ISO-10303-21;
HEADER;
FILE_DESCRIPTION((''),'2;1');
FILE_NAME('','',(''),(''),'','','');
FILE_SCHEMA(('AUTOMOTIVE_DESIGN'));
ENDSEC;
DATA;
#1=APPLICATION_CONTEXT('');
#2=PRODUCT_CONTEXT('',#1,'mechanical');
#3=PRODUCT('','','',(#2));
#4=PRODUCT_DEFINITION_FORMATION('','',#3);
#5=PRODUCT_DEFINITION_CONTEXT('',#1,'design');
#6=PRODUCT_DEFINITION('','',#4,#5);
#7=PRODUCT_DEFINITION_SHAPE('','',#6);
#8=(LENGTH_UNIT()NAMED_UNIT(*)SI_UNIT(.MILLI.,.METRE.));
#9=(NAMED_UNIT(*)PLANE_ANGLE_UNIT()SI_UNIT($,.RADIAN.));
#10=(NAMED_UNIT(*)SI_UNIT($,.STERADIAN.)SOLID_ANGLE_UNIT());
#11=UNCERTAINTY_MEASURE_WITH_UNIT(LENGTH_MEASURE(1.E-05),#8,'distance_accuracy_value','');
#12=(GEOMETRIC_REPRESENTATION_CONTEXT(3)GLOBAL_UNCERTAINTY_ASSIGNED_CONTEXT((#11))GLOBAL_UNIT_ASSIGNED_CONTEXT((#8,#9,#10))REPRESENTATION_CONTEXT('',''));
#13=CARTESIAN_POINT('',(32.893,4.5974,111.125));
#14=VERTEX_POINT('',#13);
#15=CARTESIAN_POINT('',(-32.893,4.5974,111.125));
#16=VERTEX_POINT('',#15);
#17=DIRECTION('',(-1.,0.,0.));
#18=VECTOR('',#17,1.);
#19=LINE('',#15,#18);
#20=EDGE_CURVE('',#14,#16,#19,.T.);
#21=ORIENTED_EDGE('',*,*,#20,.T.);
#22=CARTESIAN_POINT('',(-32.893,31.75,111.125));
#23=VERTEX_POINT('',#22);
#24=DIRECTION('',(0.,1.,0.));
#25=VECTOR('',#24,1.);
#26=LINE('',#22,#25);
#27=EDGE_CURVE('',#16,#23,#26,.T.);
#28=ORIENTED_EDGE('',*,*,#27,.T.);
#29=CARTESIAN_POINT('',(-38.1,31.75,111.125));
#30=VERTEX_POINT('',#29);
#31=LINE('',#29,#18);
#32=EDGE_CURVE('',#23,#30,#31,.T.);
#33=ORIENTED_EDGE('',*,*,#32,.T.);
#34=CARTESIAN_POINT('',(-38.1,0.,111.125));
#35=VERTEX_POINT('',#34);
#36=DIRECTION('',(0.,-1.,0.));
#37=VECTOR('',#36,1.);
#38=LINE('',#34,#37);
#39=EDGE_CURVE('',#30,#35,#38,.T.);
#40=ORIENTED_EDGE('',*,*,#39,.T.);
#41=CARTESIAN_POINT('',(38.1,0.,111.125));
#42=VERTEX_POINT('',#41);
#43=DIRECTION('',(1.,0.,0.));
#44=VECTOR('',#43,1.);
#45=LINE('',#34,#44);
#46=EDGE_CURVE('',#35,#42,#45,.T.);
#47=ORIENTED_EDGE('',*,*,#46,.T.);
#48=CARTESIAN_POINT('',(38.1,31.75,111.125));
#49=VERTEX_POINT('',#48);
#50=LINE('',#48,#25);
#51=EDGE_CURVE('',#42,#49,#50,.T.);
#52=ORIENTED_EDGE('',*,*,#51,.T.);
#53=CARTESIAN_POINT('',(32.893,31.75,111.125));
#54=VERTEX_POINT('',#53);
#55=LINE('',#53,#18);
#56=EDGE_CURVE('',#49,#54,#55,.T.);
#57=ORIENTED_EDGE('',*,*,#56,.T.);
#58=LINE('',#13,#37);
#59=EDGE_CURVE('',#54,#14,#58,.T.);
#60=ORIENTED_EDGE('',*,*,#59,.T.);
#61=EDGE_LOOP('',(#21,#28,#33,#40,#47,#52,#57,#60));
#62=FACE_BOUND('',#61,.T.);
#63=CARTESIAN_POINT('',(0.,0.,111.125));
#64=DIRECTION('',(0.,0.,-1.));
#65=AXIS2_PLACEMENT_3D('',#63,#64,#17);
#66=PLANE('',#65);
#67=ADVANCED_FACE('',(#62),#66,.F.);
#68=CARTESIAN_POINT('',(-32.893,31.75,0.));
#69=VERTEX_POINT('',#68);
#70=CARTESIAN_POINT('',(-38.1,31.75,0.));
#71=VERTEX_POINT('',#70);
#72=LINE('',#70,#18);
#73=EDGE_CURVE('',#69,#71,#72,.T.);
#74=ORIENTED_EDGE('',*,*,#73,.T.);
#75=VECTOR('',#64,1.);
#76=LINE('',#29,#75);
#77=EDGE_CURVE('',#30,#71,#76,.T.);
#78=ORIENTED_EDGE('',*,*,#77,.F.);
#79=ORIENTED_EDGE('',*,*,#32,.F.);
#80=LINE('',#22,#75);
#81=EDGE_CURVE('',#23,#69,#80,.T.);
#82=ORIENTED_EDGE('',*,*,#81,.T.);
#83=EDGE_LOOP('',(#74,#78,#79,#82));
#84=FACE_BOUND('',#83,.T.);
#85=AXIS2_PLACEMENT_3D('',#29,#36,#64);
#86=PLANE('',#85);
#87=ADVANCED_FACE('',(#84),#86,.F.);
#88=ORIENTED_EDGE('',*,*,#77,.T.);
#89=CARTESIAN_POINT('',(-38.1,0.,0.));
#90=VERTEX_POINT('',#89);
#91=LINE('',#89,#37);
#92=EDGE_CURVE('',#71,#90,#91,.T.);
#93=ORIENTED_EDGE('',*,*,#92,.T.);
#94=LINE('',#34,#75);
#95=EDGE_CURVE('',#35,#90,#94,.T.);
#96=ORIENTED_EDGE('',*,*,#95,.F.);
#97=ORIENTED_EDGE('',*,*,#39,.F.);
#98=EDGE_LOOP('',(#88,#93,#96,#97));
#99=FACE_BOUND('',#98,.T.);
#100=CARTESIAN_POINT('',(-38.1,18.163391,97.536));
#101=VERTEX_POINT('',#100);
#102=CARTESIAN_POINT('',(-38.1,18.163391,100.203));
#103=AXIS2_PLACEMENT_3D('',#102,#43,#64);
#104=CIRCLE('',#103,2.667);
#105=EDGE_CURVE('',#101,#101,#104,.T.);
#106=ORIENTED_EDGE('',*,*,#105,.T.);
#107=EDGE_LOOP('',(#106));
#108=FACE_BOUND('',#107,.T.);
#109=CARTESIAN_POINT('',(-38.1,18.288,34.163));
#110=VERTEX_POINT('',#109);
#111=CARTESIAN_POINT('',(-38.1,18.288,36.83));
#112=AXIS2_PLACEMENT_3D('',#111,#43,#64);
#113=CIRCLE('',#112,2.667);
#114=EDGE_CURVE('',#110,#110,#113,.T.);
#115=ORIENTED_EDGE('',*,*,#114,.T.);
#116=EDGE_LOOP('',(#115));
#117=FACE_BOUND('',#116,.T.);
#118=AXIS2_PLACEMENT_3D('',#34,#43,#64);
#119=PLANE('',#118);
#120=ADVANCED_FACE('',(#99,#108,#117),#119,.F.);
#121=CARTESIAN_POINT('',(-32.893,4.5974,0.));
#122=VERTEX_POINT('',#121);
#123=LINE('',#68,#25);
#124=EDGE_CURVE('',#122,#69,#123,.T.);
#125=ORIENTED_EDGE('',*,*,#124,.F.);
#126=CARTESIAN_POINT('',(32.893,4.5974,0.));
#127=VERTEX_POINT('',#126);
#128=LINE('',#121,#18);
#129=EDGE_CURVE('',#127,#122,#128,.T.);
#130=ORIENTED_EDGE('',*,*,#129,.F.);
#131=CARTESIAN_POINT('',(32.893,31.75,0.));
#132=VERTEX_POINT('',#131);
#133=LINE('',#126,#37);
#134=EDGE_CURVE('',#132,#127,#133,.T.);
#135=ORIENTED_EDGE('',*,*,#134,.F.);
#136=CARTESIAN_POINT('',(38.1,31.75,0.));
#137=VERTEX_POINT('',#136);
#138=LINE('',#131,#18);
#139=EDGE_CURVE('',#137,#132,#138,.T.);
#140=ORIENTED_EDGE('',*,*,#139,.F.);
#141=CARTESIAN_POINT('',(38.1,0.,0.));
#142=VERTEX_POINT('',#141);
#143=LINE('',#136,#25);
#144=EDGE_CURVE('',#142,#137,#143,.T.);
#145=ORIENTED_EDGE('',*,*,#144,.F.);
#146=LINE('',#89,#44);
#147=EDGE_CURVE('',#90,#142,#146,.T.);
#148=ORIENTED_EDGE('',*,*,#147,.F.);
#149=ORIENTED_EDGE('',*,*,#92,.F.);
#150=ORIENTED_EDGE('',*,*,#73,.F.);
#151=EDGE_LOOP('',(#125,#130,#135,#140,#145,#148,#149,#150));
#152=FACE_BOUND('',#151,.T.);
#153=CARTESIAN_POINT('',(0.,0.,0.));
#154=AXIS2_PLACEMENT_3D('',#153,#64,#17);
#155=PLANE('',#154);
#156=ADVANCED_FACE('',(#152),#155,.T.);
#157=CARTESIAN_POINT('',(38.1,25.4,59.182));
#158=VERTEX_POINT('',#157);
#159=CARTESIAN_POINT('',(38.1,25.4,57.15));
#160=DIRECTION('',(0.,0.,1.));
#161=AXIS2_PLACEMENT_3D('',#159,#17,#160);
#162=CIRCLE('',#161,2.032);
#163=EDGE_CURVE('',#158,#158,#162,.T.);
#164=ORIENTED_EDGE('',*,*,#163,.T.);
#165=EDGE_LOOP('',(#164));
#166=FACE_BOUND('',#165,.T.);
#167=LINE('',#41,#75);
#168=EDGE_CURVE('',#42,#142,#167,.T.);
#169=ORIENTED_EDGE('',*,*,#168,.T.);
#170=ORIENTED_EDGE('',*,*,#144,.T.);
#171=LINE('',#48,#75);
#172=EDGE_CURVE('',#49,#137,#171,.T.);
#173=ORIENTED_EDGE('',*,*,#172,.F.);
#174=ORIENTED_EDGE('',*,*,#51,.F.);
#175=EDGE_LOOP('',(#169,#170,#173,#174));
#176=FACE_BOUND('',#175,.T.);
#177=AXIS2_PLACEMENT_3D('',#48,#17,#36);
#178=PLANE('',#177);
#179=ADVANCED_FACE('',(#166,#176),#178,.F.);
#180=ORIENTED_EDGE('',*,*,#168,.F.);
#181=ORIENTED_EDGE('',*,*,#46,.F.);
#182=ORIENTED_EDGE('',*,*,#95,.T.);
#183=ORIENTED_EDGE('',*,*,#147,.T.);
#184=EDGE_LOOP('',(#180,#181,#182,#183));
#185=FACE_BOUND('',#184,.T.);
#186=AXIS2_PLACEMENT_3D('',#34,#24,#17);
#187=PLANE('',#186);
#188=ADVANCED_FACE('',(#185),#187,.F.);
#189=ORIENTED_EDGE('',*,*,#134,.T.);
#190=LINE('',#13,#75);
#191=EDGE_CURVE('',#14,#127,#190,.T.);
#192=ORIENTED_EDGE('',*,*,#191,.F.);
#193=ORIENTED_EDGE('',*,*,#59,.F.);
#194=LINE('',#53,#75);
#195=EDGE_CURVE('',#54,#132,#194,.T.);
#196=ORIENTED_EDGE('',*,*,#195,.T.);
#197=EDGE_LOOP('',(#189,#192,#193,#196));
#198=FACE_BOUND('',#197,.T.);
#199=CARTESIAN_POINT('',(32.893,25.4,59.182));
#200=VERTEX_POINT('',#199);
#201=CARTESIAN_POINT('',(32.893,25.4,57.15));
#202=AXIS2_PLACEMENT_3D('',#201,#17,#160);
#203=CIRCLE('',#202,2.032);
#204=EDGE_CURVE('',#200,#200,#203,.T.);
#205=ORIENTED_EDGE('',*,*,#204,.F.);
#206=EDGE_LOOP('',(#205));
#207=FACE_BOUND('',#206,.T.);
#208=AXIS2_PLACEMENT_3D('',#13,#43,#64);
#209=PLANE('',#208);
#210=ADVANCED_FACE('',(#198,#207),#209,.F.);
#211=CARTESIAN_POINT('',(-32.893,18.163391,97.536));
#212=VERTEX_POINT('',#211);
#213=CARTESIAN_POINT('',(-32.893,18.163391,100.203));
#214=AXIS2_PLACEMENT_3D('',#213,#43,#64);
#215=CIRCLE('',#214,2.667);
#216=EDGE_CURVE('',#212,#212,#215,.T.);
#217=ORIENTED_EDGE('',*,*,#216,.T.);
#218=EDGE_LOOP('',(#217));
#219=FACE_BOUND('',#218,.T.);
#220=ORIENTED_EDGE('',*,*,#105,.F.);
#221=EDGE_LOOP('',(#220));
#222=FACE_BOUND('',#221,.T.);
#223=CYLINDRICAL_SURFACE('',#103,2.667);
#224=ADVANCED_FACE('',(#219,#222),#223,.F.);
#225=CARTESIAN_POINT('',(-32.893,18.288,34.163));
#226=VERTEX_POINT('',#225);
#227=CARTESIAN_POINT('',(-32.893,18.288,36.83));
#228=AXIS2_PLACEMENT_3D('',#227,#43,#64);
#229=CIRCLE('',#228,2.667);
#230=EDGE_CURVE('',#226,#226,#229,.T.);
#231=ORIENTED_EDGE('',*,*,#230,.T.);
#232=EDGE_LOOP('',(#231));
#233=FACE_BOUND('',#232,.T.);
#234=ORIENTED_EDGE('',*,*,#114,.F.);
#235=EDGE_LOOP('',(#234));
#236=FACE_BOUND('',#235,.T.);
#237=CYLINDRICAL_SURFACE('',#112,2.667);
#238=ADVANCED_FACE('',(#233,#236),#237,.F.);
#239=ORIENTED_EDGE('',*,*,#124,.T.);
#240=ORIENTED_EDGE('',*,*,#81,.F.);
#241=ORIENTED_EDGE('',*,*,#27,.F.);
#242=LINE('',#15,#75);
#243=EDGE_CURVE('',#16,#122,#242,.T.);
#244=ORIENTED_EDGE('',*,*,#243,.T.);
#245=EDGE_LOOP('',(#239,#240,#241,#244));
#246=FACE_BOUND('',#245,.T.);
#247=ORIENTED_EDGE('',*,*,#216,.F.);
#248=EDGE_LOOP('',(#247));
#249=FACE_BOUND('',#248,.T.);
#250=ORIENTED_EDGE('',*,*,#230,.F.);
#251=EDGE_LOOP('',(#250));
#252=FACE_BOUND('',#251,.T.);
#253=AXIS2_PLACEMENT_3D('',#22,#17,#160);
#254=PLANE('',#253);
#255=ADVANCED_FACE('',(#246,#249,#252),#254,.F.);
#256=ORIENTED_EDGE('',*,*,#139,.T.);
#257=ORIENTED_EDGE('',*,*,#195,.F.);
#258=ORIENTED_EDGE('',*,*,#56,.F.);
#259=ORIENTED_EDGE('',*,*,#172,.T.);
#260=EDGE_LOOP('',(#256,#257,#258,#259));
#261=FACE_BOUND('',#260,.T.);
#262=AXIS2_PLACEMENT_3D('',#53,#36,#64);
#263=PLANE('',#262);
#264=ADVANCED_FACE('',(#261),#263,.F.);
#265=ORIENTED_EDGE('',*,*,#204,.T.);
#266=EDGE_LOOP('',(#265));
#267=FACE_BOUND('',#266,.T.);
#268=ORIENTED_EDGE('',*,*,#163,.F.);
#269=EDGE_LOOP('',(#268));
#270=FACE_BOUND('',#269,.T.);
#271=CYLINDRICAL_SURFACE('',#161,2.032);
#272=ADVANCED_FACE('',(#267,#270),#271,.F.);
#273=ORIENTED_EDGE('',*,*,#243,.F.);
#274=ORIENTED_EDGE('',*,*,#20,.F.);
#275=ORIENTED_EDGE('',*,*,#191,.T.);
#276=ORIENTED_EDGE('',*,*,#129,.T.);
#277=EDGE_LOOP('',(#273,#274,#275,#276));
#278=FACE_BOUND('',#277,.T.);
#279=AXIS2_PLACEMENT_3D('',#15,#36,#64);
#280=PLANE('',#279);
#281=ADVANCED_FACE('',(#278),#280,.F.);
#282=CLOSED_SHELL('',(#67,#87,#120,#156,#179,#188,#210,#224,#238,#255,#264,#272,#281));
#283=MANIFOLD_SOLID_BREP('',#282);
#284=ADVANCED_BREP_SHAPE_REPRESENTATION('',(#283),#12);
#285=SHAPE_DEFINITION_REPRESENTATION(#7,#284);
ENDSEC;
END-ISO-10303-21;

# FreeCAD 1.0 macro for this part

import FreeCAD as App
import Part
import Sketcher
from FreeCAD import Vector
Q = App.Units.Quantity

doc = App.newDocument("Part")
body = doc.addObject("PartDesign::Body", "Body")

# Sketch on XY plane
sketch1 = doc.addObject("Sketcher::SketchObject", "Sketch")
body.addObject(sketch1)
sketch1.AttachmentSupport = (doc.XY_Plane, [""])
sketch1.MapMode = "FlatFace"
sketch1.addGeometry(Part.LineSegment(Vector(-38, 0, 0), Vector(38, 0, 0)), False)
sketch1.addGeometry(Part.LineSegment(Vector(38, 0, 0), Vector(38, 32, 0)), False)
sketch1.addGeometry(Part.LineSegment(Vector(38, 32, 0), Vector(33, 32, 0)), False)
sketch1.addGeometry(Part.LineSegment(Vector(33, 32, 0), Vector(33, 5, 0)), False)
sketch1.addGeometry(Part.LineSegment(Vector(33, 5, 0), Vector(-33, 5, 0)), False)
sketch1.addGeometry(Part.LineSegment(Vector(-33, 5, 0), Vector(-33, 32, 0)), False)
sketch1.addGeometry(Part.LineSegment(Vector(-33, 32, 0), Vector(-38, 32, 0)), False)
sketch1.addGeometry(Part.LineSegment(Vector(-38, 32, 0), Vector(-38, 0, 0)), False)
sketch1.addConstraint(Sketcher.Constraint("Coincident", 0, 2, 1, 1))
sketch1.addConstraint(Sketcher.Constraint("Coincident", 1, 2, 2, 1))
sketch1.addConstraint(Sketcher.Constraint("Coincident", 2, 2, 3, 1))
sketch1.addConstraint(Sketcher.Constraint("Coincident", 3, 2, 4, 1))
sketch1.addConstraint(Sketcher.Constraint("Coincident", 4, 2, 5, 1))
sketch1.addConstraint(Sketcher.Constraint("Coincident", 5, 2, 6, 1))
sketch1.addConstraint(Sketcher.Constraint("Coincident", 6, 2, 7, 1))
sketch1.addConstraint(Sketcher.Constraint("Coincident", 7, 2, 0, 1))
sketch1.addConstraint(Sketcher.Constraint("Horizontal", 0))
sketch1.addConstraint(Sketcher.Constraint("Vertical", 1))
sketch1.addConstraint(Sketcher.Constraint("Horizontal", 2))
sketch1.addConstraint(Sketcher.Constraint("Vertical", 3))
sketch1.addConstraint(Sketcher.Constraint("Horizontal", 4))
sketch1.addConstraint(Sketcher.Constraint("Vertical", 5))
sketch1.addConstraint(Sketcher.Constraint("Horizontal", 6))
sketch1.addConstraint(Sketcher.Constraint("Vertical", 7))
sketch1.addConstraint(Sketcher.Constraint("Symmetric", 0, 2, 7, 2, -1, 1))
sketch1.addConstraint(Sketcher.Constraint("Symmetric", 2, 2, 5, 2, -2))
sketch1.addConstraint(Sketcher.Constraint("DistanceX", 0, 1, 0, 2, Q("3 in")))
sketch1.addConstraint(Sketcher.Constraint("DistanceX", 4, 2, 4, 1, Q("2.59 in")))
sketch1.addConstraint(Sketcher.Constraint("DistanceY", 1, 1, 1, 2, Q("1.25 in")))
sketch1.addConstraint(Sketcher.Constraint("DistanceY", 3, 2, 3, 1, Q("1.069 in")))
pad1 = doc.addObject("PartDesign::Pad", "Pad")
body.addObject(pad1)
pad1.Profile = sketch1
pad1.Length = Q("4.375 in")

# Sketch on YZ plane
sketch2 = doc.addObject("Sketcher::SketchObject", "Sketch001")
body.addObject(sketch2)
sketch2.AttachmentSupport = (doc.YZ_Plane, [""])
sketch2.MapMode = "FlatFace"
sketch2.AttachmentOffset = App.Placement(Vector(0, 0, -1.295 * 25.4), App.Rotation())
sketch2.addGeometry(Part.Circle(Vector(18.3, 36.8, 0), Vector(0, 0, 1), 2.7), False)
sketch2.addConstraint(Sketcher.Constraint("Diameter", 0, Q("0.21 in")))
sketch2.addConstraint(Sketcher.Constraint("DistanceX", -1, 1, 0, 3, Q("0.72 in")))
sketch2.addConstraint(Sketcher.Constraint("DistanceY", -1, 1, 0, 3, Q("1.45 in")))
pocket1 = doc.addObject("PartDesign::Pocket", "Pocket")
body.addObject(pocket1)
pocket1.Profile = sketch2
pocket1.Type = "ThroughAll"

# Sketch on YZ plane
sketch3 = doc.addObject("Sketcher::SketchObject", "Sketch002")
body.addObject(sketch3)
sketch3.AttachmentSupport = (doc.YZ_Plane, [""])
sketch3.MapMode = "FlatFace"
sketch3.AttachmentOffset = App.Placement(Vector(0, 0, -1.295 * 25.4), App.Rotation())
sketch3.addGeometry(Part.Circle(Vector(18.2, 100.2, 0), Vector(0, 0, 1), 2.7), False)
sketch3.addConstraint(Sketcher.Constraint("Diameter", 0, Q("0.21 in")))
sketch3.addConstraint(Sketcher.Constraint("DistanceY", -1, 1, 0, 3, Q("3.945 in")))
sketch3.addConstraint(Sketcher.Constraint("DistanceX", -1, 1, 0, 3, 18.163391))
pocket2 = doc.addObject("PartDesign::Pocket", "Pocket001")
body.addObject(pocket2)
pocket2.Profile = sketch3
pocket2.Type = "ThroughAll"

# Sketch on YZ plane
sketch4 = doc.addObject("Sketcher::SketchObject", "Sketch003")
body.addObject(sketch4)
sketch4.AttachmentSupport = (doc.YZ_Plane, [""])
sketch4.MapMode = "FlatFace"
sketch4.AttachmentOffset = App.Placement(Vector(0, 0, 1.295 * 25.4), App.Rotation())
sketch4.addGeometry(Part.Circle(Vector(25.4, 57.1, 0), Vector(0, 0, 1), 2), False)
sketch4.addConstraint(Sketcher.Constraint("Diameter", 0, Q("0.16 in")))
sketch4.addConstraint(Sketcher.Constraint("DistanceX", -1, 1, 0, 3, Q("1 in")))
sketch4.addConstraint(Sketcher.Constraint("DistanceY", -1, 1, 0, 3, Q("2.25 in")))
pocket3 = doc.addObject("PartDesign::Pocket", "Pocket002")
body.addObject(pocket3)
pocket3.Profile = sketch4
pocket3.Type = "ThroughAll"
pocket3.Reversed = True

doc.recompute()
